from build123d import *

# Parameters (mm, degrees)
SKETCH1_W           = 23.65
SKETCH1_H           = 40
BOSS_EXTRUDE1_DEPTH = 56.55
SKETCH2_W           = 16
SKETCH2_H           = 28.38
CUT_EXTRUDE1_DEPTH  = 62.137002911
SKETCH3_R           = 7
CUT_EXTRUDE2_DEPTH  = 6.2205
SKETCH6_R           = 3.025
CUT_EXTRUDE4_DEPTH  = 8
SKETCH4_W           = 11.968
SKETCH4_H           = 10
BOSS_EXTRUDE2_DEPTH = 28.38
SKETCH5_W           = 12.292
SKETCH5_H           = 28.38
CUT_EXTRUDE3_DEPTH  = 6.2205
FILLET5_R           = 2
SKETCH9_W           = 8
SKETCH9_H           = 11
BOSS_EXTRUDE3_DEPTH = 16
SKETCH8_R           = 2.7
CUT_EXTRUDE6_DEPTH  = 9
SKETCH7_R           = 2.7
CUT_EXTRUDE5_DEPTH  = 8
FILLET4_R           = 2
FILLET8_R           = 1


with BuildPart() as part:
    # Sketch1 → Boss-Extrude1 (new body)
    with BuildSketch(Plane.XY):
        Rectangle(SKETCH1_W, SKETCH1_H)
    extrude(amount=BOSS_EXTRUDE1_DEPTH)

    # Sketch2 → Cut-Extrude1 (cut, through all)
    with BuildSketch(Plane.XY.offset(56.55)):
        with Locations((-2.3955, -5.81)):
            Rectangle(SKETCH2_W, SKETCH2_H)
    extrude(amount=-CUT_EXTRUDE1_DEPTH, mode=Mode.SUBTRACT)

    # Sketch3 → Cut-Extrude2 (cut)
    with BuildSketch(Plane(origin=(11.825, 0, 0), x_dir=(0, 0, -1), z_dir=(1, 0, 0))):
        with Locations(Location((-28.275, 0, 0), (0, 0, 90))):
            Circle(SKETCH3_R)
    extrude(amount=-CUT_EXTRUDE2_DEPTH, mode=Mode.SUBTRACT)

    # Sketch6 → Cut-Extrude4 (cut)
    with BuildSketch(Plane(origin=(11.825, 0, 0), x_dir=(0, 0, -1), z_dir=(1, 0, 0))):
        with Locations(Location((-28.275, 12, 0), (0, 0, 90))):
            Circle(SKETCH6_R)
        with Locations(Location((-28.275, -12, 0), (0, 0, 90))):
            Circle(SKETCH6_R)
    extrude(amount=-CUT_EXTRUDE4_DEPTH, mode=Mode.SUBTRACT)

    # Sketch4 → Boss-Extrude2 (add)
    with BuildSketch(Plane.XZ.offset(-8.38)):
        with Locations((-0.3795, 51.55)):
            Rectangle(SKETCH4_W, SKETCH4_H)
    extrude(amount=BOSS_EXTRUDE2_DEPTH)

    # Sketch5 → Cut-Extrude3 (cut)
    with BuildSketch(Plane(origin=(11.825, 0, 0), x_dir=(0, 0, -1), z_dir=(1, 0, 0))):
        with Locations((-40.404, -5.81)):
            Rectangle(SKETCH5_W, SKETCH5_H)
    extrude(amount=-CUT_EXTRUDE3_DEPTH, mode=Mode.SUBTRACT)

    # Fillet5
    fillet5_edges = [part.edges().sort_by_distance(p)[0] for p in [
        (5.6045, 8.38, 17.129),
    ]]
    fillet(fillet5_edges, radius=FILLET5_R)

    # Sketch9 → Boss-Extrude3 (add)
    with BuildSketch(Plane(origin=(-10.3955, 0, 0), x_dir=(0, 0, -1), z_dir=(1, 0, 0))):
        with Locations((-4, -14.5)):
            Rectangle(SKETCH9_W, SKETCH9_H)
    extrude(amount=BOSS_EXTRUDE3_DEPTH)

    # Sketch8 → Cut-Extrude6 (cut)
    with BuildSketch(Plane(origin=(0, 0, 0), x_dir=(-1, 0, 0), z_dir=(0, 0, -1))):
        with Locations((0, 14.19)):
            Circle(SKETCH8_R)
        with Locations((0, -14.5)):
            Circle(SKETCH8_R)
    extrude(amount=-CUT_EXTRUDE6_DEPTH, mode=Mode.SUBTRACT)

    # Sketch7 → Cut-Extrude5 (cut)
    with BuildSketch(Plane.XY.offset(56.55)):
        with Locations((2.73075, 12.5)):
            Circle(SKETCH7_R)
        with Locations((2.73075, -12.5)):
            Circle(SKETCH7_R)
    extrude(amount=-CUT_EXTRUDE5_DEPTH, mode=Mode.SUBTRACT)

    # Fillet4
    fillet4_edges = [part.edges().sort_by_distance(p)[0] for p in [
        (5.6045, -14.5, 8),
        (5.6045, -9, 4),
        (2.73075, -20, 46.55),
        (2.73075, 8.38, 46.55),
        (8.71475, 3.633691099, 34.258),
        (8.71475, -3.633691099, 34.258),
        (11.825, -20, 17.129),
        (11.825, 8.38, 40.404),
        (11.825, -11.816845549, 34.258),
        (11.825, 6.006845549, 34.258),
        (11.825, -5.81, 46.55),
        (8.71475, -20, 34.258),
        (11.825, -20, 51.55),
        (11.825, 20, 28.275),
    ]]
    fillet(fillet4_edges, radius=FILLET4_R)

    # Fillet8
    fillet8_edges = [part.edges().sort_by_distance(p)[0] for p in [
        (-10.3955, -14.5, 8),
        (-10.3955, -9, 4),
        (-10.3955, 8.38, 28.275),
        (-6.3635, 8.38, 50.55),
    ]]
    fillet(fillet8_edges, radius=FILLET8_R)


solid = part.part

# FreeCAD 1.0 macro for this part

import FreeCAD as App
import Part
import Sketcher


def edges_at(feature, points):
    """Names of the edges that pass closest to the given points."""
    edges = feature.Shape.Edges
    near = lambda p: min(range(len(edges)), key=lambda i: edges[i].distToShape(Part.Vertex(*p))[0])
    return sorted({f"Edge{near(p) + 1}" for p in points})


def add_polygon(sketch, points):
    """Adds a closed chain of lines whose ends are joined by coincident constraints."""
    first, n = sketch.GeometryCount, len(points)
    for a, b in zip(points, points[1:] + points[:1]):
        sketch.addGeometry(Part.LineSegment(App.Vector(*a, 0), App.Vector(*b, 0)), False)
    for i in range(n):
        sketch.addConstraint(Sketcher.Constraint("Coincident", first + i, 2, first + (i + 1) % n, 1))

doc = App.newDocument("Part")
params = doc.addObject("Spreadsheet::Sheet", "Params")
for row, (alias, value) in enumerate([
    ("sketch1_height", "40 mm"),
    ("sketch1_width", "23.65 mm"),
    ("pad1_length", "56.55 mm"),
    ("sketch2_width", "16 mm"),
    ("sketch2_height", "28.38 mm"),
    ("sketch3_diameter", "14 mm"),
    ("pocket2_length", "6.2205 mm"),
    ("sketch4_diameter", "6.05 mm"),
    ("pocket3_length", "8 mm"),
    ("sketch5_height", "10 mm"),
    ("pad2_length", "28.38 mm"),
    ("sketch6_width", "28.38 mm"),
    ("pocket4_length", "6.2205 mm"),
    ("fillet_radius", "2 mm"),
    ("sketch7_width", "11 mm"),
    ("sketch7_height", "8 mm"),
    ("pad3_length", "16 mm"),
    ("sketch8_diameter", "5.4 mm"),
    ("pocket5_length", "9 mm"),
    ("sketch9_diameter", "5.4 mm"),
    ("pocket6_length", "8 mm"),
    ("fillet2_radius", "2 mm"),
    ("fillet3_radius", "1 mm"),
], start=1):
    params.set(f"A{row}", alias)
    params.set(f"B{row}", "=" + value)
    params.setAlias(f"B{row}", alias)

body = doc.addObject("PartDesign::Body", "Body")

# Sketch on XY plane
sketch1 = body.newObject("Sketcher::SketchObject", "Sketch")
sketch1.AttachmentSupport = (doc.getObject("XY_Plane"), [""])
sketch1.MapMode = "FlatFace"
add_polygon(sketch1, [(-11.825, 20), (-11.825, -20), (11.825, -20), (11.825, 20)])  # lines 0-3
sketch1.addConstraint([
    Sketcher.Constraint("Vertical", 0),
    Sketcher.Constraint("Horizontal", 1),
    Sketcher.Constraint("Vertical", 2),
    Sketcher.Constraint("Horizontal", 3),
    Sketcher.Constraint("Symmetric", 0, 2, 2, 2, -1, 1),
    Sketcher.Constraint("DistanceY", 0, 2, 0, 1, 40.0),
    Sketcher.Constraint("DistanceX", 1, 1, 1, 2, 23.65),
])
sketch1.setExpression("Constraints[9]", "Params.sketch1_height")
sketch1.setExpression("Constraints[10]", "Params.sketch1_width")
pad1 = body.newObject("PartDesign::Pad", "Pad")
pad1.Profile = sketch1
pad1.setExpression("Length", "Params.pad1_length")

# Sketch on XY plane
sketch2 = body.newObject("Sketcher::SketchObject", "Sketch001")
sketch2.AttachmentSupport = (doc.getObject("XY_Plane"), [""])
sketch2.MapMode = "FlatFace"
sketch2.AttachmentOffset = App.Placement(App.Vector(0, 0, 56.55), App.Rotation())
add_polygon(sketch2, [(-10.3955, 8.38), (-10.3955, -20), (5.6045, -20), (5.6045, 8.38)])  # lines 0-3
sketch2.addConstraint([
    Sketcher.Constraint("Vertical", 0),
    Sketcher.Constraint("Horizontal", 1),
    Sketcher.Constraint("Vertical", 2),
    Sketcher.Constraint("Horizontal", 3),
    Sketcher.Constraint("DistanceX", 1, 1, 1, 2, 16.0),
    Sketcher.Constraint("DistanceY", 0, 2, -1, 1, 20.0),
    Sketcher.Constraint("DistanceY", 0, 2, 0, 1, 28.38),
    Sketcher.Constraint("DistanceX", 0, 2, -1, 1, 10.3955),
])
sketch2.setExpression("Constraints[8]", "Params.sketch2_width")
sketch2.setExpression("Constraints[10]", "Params.sketch2_height")
pocket1 = body.newObject("PartDesign::Pocket", "Pocket")
pocket1.Profile = sketch2
pocket1.Type = "ThroughAll"

# Sketch on YZ plane
sketch3 = body.newObject("Sketcher::SketchObject", "Sketch002")
sketch3.AttachmentSupport = (doc.getObject("YZ_Plane"), [""])
sketch3.MapMode = "FlatFace"
sketch3.AttachmentOffset = App.Placement(App.Vector(0, 0, 11.825), App.Rotation())
sketch3.addGeometry(Part.Circle(App.Vector(0, 28.275, 0), App.Vector(0, 0, 1), 7), False)
sketch3.addConstraint([
    Sketcher.Constraint("PointOnObject", 0, 3, -2),
    Sketcher.Constraint("Diameter", 0, 14.0),
    Sketcher.Constraint("DistanceY", -1, 1, 0, 3, 28.275),
])
sketch3.setExpression("Constraints[1]", "Params.sketch3_diameter")
pocket2 = body.newObject("PartDesign::Pocket", "Pocket001")
pocket2.Profile = sketch3
pocket2.setExpression("Length", "Params.pocket2_length")

# Sketch on YZ plane
sketch4 = body.newObject("Sketcher::SketchObject", "Sketch003")
sketch4.AttachmentSupport = (doc.getObject("YZ_Plane"), [""])
sketch4.MapMode = "FlatFace"
sketch4.AttachmentOffset = App.Placement(App.Vector(0, 0, 11.825), App.Rotation())
sketch4.addGeometry([
    Part.Circle(App.Vector(12, 28.275, 0), App.Vector(0, 0, 1), 3.025),
    Part.Circle(App.Vector(-12, 28.275, 0), App.Vector(0, 0, 1), 3.025),
], False)
sketch4.addConstraint([
    Sketcher.Constraint("Equal", 0, 1),
    Sketcher.Constraint("Symmetric", 0, 3, 1, 3, -2),
    Sketcher.Constraint("Diameter", 0, 6.05),
    Sketcher.Constraint("DistanceX", -1, 1, 0, 3, 12.0),
    Sketcher.Constraint("DistanceY", -1, 1, 0, 3, 28.275),
])
sketch4.setExpression("Constraints[2]", "Params.sketch4_diameter")
pocket3 = body.newObject("PartDesign::Pocket", "Pocket002")
pocket3.Profile = sketch4
pocket3.setExpression("Length", "Params.pocket3_length")

# Sketch on XZ plane
sketch5 = body.newObject("Sketcher::SketchObject", "Sketch004")
sketch5.AttachmentSupport = (doc.getObject("XZ_Plane"), [""])
sketch5.MapMode = "FlatFace"
sketch5.AttachmentOffset = App.Placement(App.Vector(0, 0, -8.38), App.Rotation())
add_polygon(sketch5, [(-6.3635, 56.55), (-6.3635, 46.55), (5.6045, 46.55), (5.6045, 56.55)])  # lines 0-3
sketch5.addConstraint([
    Sketcher.Constraint("Vertical", 0),
    Sketcher.Constraint("Horizontal", 1),
    Sketcher.Constraint("Vertical", 2),
    Sketcher.Constraint("Horizontal", 3),
    Sketcher.Constraint("DistanceY", 0, 2, 0, 1, 10.0),
    Sketcher.Constraint("DistanceX", 1, 1, 1, 2, 11.968),
    Sketcher.Constraint("DistanceY", -1, 1, 0, 2, 46.55),
    Sketcher.Constraint("DistanceX", 0, 2, -1, 1, 6.3635),
])
sketch5.setExpression("Constraints[8]", "Params.sketch5_height")
pad2 = body.newObject("PartDesign::Pad", "Pad001")
pad2.Profile = sketch5
pad2.setExpression("Length", "Params.pad2_length")

# Sketch on YZ plane
sketch6 = body.newObject("Sketcher::SketchObject", "Sketch005")
sketch6.AttachmentSupport = (doc.getObject("YZ_Plane"), [""])
sketch6.MapMode = "FlatFace"
sketch6.AttachmentOffset = App.Placement(App.Vector(0, 0, 11.825), App.Rotation())
add_polygon(sketch6, [(8.38, 46.55), (-20, 46.55), (-20, 34.258), (8.38, 34.258)])  # lines 0-3
sketch6.addConstraint([
    Sketcher.Constraint("Horizontal", 0),
    Sketcher.Constraint("Vertical", 1),
    Sketcher.Constraint("Horizontal", 2),
    Sketcher.Constraint("Vertical", 3),
    Sketcher.Constraint("DistanceX", 0, 2, -1, 1, 20.0),
    Sketcher.Constraint("DistanceX", 0, 2, 0, 1, 28.38),
    Sketcher.Constraint("DistanceY", 1, 2, 1, 1, 12.292),
    Sketcher.Constraint("DistanceY", -1, 1, 0, 2, 46.55),
])
sketch6.setExpression("Constraints[9]", "Params.sketch6_width")
pocket4 = body.newObject("PartDesign::Pocket", "Pocket003")
pocket4.Profile = sketch6
pocket4.setExpression("Length", "Params.pocket4_length")
doc.recompute()

fillet = body.newObject("PartDesign::Fillet", "Fillet")
fillet.Base = (pocket4, edges_at(pocket4, [(5.604, 8.38, 17.129)]))
fillet.setExpression("Radius", "Params.fillet_radius")

# Sketch on YZ plane
sketch7 = body.newObject("Sketcher::SketchObject", "Sketch006")
sketch7.AttachmentSupport = (doc.getObject("YZ_Plane"), [""])
sketch7.MapMode = "FlatFace"
sketch7.AttachmentOffset = App.Placement(App.Vector(0, 0, -10.3955), App.Rotation())
add_polygon(sketch7, [(-9, 8), (-20, 8), (-20, 0), (-9, 0)])  # lines 0-3
sketch7.addConstraint([
    Sketcher.Constraint("Horizontal", 0),
    Sketcher.Constraint("Vertical", 1),
    Sketcher.Constraint("Horizontal", 2),
    Sketcher.Constraint("Vertical", 3),
    Sketcher.Constraint("PointOnObject", 1, 2, -1),
    Sketcher.Constraint("DistanceX", 0, 2, 0, 1, 11.0),
    Sketcher.Constraint("DistanceY", 1, 2, 1, 1, 8.0),
    Sketcher.Constraint("DistanceX", 0, 2, -1, 1, 20.0),
])
sketch7.setExpression("Constraints[9]", "Params.sketch7_width")
sketch7.setExpression("Constraints[10]", "Params.sketch7_height")
pad3 = body.newObject("PartDesign::Pad", "Pad002")
pad3.Profile = sketch7
pad3.setExpression("Length", "Params.pad3_length")

# Sketch on XY plane
sketch8 = body.newObject("Sketcher::SketchObject", "Sketch007")
sketch8.AttachmentSupport = (doc.getObject("XY_Plane"), [""])
sketch8.MapMode = "FlatFace"
sketch8.addGeometry([
    Part.Circle(App.Vector(0, 14.19, 0), App.Vector(0, 0, 1), 2.7),
    Part.Circle(App.Vector(0, -14.5, 0), App.Vector(0, 0, 1), 2.7),
], False)
sketch8.addConstraint([
    Sketcher.Constraint("Equal", 0, 1),
    Sketcher.Constraint("PointOnObject", 0, 3, -2),
    Sketcher.Constraint("PointOnObject", 1, 3, -2),
    Sketcher.Constraint("Diameter", 0, 5.4),
    Sketcher.Constraint("DistanceY", 1, 3, -1, 1, 14.5),
    Sketcher.Constraint("DistanceY", -1, 1, 0, 3, 14.19),
])
sketch8.setExpression("Constraints[3]", "Params.sketch8_diameter")
pocket5 = body.newObject("PartDesign::Pocket", "Pocket004")
pocket5.Profile = sketch8
pocket5.setExpression("Length", "Params.pocket5_length")
pocket5.Reversed = True

# Sketch on XY plane
sketch9 = body.newObject("Sketcher::SketchObject", "Sketch008")
sketch9.AttachmentSupport = (doc.getObject("XY_Plane"), [""])
sketch9.MapMode = "FlatFace"
sketch9.AttachmentOffset = App.Placement(App.Vector(0, 0, 56.55), App.Rotation())
sketch9.addGeometry([
    Part.Circle(App.Vector(2.73075, 12.5, 0), App.Vector(0, 0, 1), 2.7),
    Part.Circle(App.Vector(2.73075, -12.5, 0), App.Vector(0, 0, 1), 2.7),
], False)
sketch9.addConstraint([
    Sketcher.Constraint("Equal", 0, 1),
    Sketcher.Constraint("Symmetric", 0, 3, 1, 3, -1),
    Sketcher.Constraint("Diameter", 0, 5.4),
    Sketcher.Constraint("DistanceY", 1, 3, 0, 3, 25.0),
    Sketcher.Constraint("DistanceX", -1, 1, 0, 3, 2.73075),
])
sketch9.setExpression("Constraints[2]", "Params.sketch9_diameter")
pocket6 = body.newObject("PartDesign::Pocket", "Pocket005")
pocket6.Profile = sketch9
pocket6.setExpression("Length", "Params.pocket6_length")
doc.recompute()

fillet2 = body.newObject("PartDesign::Fillet", "Fillet001")
fillet2.Base = (pocket6, edges_at(pocket6, [
    (5.604, -14.5, 8),
    (5.604, -9, 4),
    (2.731, -20, 46.55),
    (2.731, 8.38, 46.55),
    (8.715, 3.634, 34.258),
    (8.715, -3.634, 34.258),
    (11.825, -20, 17.129),
    (11.825, 8.38, 40.404),
    (11.825, -11.817, 34.258),
    (11.825, 6.007, 34.258),
    (11.825, -5.81, 46.55),
    (8.715, -20, 34.258),
    (11.825, -20, 51.55),
    (11.825, 20, 28.275),
]))
fillet2.setExpression("Radius", "Params.fillet2_radius")
doc.recompute()

fillet3 = body.newObject("PartDesign::Fillet", "Fillet002")
fillet3.Base = (fillet2, edges_at(fillet2, [
    (-10.396, -14.5, 8),
    (-10.396, -9, 4),
    (-10.396, 8.38, 28.275),
    (-6.364, 8.38, 50.55),
]))
fillet3.setExpression("Radius", "Params.fillet3_radius")

doc.recompute()
